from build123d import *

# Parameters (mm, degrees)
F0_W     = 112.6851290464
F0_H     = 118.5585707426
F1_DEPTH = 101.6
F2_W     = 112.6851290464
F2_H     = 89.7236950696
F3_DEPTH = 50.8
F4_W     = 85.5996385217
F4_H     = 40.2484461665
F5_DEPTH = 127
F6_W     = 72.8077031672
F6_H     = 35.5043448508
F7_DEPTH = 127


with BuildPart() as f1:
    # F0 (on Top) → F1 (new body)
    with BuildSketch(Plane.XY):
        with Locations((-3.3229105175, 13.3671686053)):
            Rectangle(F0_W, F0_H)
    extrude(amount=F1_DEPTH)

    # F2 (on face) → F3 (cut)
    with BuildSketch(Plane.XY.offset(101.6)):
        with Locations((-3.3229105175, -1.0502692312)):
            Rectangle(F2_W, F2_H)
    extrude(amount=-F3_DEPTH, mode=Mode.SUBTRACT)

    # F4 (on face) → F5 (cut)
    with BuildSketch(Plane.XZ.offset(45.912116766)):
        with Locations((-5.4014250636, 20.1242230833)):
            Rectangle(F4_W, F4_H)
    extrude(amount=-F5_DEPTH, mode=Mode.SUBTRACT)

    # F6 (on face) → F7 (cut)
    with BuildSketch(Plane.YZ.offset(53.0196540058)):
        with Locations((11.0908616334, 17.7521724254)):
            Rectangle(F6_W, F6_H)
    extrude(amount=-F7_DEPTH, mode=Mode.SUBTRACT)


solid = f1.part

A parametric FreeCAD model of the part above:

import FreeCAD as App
import Part
import Sketcher
Q = App.Units.Quantity

doc = App.newDocument("Part")
body = doc.addObject("PartDesign::Body", "Body")

# Sketch on XY plane
sketch1 = body.newObject("Sketcher::SketchObject", "Sketch")
sketch1.AttachmentSupport = (doc.getObject("XY_Plane"), [""])
sketch1.MapMode = "FlatFace"
sketch1.addGeometry([
    Part.LineSegment(App.Vector(-59.665475, 72.646454, 0), App.Vector(-59.665475, -45.912117, 0)),
    Part.LineSegment(App.Vector(-59.665475, -45.912117, 0), App.Vector(53.019654, -45.912117, 0)),
    Part.LineSegment(App.Vector(53.019654, -45.912117, 0), App.Vector(53.019654, 72.646454, 0)),
    Part.LineSegment(App.Vector(53.019654, 72.646454, 0), App.Vector(-59.665475, 72.646454, 0)),
], False)
sketch1.addConstraint([
    Sketcher.Constraint("Coincident", 0, 2, 1, 1),
    Sketcher.Constraint("Coincident", 1, 2, 2, 1),
    Sketcher.Constraint("Coincident", 2, 2, 3, 1),
    Sketcher.Constraint("Coincident", 3, 2, 0, 1),
    Sketcher.Constraint("Vertical", 0),
    Sketcher.Constraint("Horizontal", 1),
    Sketcher.Constraint("Vertical", 2),
    Sketcher.Constraint("Horizontal", 3),
    Sketcher.Constraint("DistanceX", 1, 1, 1, 2, 112.685129),
    Sketcher.Constraint("DistanceY", 0, 2, 0, 1, 118.558571),
    Sketcher.Constraint("DistanceX", 0, 2, -1, 1, 59.665475),
    Sketcher.Constraint("DistanceY", 0, 2, -1, 1, 45.912117),
])
pad1 = body.newObject("PartDesign::Pad", "Pad")
pad1.Profile = sketch1
pad1.Length = Q("4 in")

# Sketch on XY plane
sketch2 = body.newObject("Sketcher::SketchObject", "Sketch001")
sketch2.AttachmentSupport = (doc.getObject("XY_Plane"), [""])
sketch2.MapMode = "FlatFace"
sketch2.AttachmentOffset = App.Placement(App.Vector(0, 0, 4 * 25.4), App.Rotation())
sketch2.addGeometry([
    Part.LineSegment(App.Vector(-59.665475, 43.811578, 0), App.Vector(-59.665475, -45.912117, 0)),
    Part.LineSegment(App.Vector(-59.665475, -45.912117, 0), App.Vector(53.019654, -45.912117, 0)),
    Part.LineSegment(App.Vector(53.019654, -45.912117, 0), App.Vector(53.019654, 43.811578, 0)),
    Part.LineSegment(App.Vector(53.019654, 43.811578, 0), App.Vector(-59.665475, 43.811578, 0)),
], False)
sketch2.addConstraint([
    Sketcher.Constraint("Coincident", 0, 2, 1, 1),
    Sketcher.Constraint("Coincident", 1, 2, 2, 1),
    Sketcher.Constraint("Coincident", 2, 2, 3, 1),
    Sketcher.Constraint("Coincident", 3, 2, 0, 1),
    Sketcher.Constraint("Vertical", 0),
    Sketcher.Constraint("Horizontal", 1),
    Sketcher.Constraint("Vertical", 2),
    Sketcher.Constraint("Horizontal", 3),
    Sketcher.Constraint("DistanceX", 1, 1, 1, 2, 112.685129),
    Sketcher.Constraint("DistanceY", 0, 2, 0, 1, 89.723695),
    Sketcher.Constraint("DistanceY", -1, 1, 2, 2, 43.811578),
    Sketcher.Constraint("DistanceX", 0, 2, -1, 1, 59.665475),
])
pocket1 = body.newObject("PartDesign::Pocket", "Pocket")
pocket1.Profile = sketch2
pocket1.Length = Q("2 in")

# Sketch on XZ plane
sketch3 = body.newObject("Sketcher::SketchObject", "Sketch002")
sketch3.AttachmentSupport = (doc.getObject("XZ_Plane"), [""])
sketch3.MapMode = "FlatFace"
sketch3.AttachmentOffset = App.Placement(App.Vector(0, 0, 45.912117), App.Rotation())
sketch3.addGeometry([
    Part.LineSegment(App.Vector(-48.201244, 40.248446, 0), App.Vector(-48.201244, 0, 0)),
    Part.LineSegment(App.Vector(-48.201244, 0, 0), App.Vector(37.398394, 0, 0)),
    Part.LineSegment(App.Vector(37.398394, 0, 0), App.Vector(37.398394, 40.248446, 0)),
    Part.LineSegment(App.Vector(37.398394, 40.248446, 0), App.Vector(-48.201244, 40.248446, 0)),
], False)
sketch3.addConstraint([
    Sketcher.Constraint("Coincident", 0, 2, 1, 1),
    Sketcher.Constraint("Coincident", 1, 2, 2, 1),
    Sketcher.Constraint("Coincident", 2, 2, 3, 1),
    Sketcher.Constraint("Coincident", 3, 2, 0, 1),
    Sketcher.Constraint("Vertical", 0),
    Sketcher.Constraint("Horizontal", 1),
    Sketcher.Constraint("Vertical", 2),
    Sketcher.Constraint("Horizontal", 3),
    Sketcher.Constraint("PointOnObject", 0, 2, -1),
    Sketcher.Constraint("DistanceX", 1, 1, 1, 2, 85.599639),
    Sketcher.Constraint("DistanceY", 0, 2, 0, 1, 40.248446),
    Sketcher.Constraint("DistanceX", 0, 2, -1, 1, 48.201244),
])
pocket2 = body.newObject("PartDesign::Pocket", "Pocket001")
pocket2.Profile = sketch3
pocket2.Length = Q("5 in")

# Sketch on YZ plane
sketch4 = body.newObject("Sketcher::SketchObject", "Sketch003")
sketch4.AttachmentSupport = (doc.getObject("YZ_Plane"), [""])
sketch4.MapMode = "FlatFace"
sketch4.AttachmentOffset = App.Placement(App.Vector(0, 0, 53.019654), App.Rotation())
sketch4.addGeometry([
    Part.LineSegment(App.Vector(-25.31299, 35.504345, 0), App.Vector(-25.31299, 0, 0)),
    Part.LineSegment(App.Vector(-25.31299, 0, 0), App.Vector(47.494713, 0, 0)),
    Part.LineSegment(App.Vector(47.494713, 0, 0), App.Vector(47.494713, 35.504345, 0)),
    Part.LineSegment(App.Vector(47.494713, 35.504345, 0), App.Vector(-25.31299, 35.504345, 0)),
], False)
sketch4.addConstraint([
    Sketcher.Constraint("Coincident", 0, 2, 1, 1),
    Sketcher.Constraint("Coincident", 1, 2, 2, 1),
    Sketcher.Constraint("Coincident", 2, 2, 3, 1),
    Sketcher.Constraint("Coincident", 3, 2, 0, 1),
    Sketcher.Constraint("Vertical", 0),
    Sketcher.Constraint("Horizontal", 1),
    Sketcher.Constraint("Vertical", 2),
    Sketcher.Constraint("Horizontal", 3),
    Sketcher.Constraint("PointOnObject", 0, 2, -1),
    Sketcher.Constraint("DistanceX", 1, 1, 1, 2, 72.807703),
    Sketcher.Constraint("DistanceY", 0, 2, 0, 1, 35.504345),
    Sketcher.Constraint("DistanceX", 0, 2, -1, 1, 25.31299),
])
pocket3 = body.newObject("PartDesign::Pocket", "Pocket002")
pocket3.Profile = sketch4
pocket3.Length = Q("5 in")

doc.recompute()
